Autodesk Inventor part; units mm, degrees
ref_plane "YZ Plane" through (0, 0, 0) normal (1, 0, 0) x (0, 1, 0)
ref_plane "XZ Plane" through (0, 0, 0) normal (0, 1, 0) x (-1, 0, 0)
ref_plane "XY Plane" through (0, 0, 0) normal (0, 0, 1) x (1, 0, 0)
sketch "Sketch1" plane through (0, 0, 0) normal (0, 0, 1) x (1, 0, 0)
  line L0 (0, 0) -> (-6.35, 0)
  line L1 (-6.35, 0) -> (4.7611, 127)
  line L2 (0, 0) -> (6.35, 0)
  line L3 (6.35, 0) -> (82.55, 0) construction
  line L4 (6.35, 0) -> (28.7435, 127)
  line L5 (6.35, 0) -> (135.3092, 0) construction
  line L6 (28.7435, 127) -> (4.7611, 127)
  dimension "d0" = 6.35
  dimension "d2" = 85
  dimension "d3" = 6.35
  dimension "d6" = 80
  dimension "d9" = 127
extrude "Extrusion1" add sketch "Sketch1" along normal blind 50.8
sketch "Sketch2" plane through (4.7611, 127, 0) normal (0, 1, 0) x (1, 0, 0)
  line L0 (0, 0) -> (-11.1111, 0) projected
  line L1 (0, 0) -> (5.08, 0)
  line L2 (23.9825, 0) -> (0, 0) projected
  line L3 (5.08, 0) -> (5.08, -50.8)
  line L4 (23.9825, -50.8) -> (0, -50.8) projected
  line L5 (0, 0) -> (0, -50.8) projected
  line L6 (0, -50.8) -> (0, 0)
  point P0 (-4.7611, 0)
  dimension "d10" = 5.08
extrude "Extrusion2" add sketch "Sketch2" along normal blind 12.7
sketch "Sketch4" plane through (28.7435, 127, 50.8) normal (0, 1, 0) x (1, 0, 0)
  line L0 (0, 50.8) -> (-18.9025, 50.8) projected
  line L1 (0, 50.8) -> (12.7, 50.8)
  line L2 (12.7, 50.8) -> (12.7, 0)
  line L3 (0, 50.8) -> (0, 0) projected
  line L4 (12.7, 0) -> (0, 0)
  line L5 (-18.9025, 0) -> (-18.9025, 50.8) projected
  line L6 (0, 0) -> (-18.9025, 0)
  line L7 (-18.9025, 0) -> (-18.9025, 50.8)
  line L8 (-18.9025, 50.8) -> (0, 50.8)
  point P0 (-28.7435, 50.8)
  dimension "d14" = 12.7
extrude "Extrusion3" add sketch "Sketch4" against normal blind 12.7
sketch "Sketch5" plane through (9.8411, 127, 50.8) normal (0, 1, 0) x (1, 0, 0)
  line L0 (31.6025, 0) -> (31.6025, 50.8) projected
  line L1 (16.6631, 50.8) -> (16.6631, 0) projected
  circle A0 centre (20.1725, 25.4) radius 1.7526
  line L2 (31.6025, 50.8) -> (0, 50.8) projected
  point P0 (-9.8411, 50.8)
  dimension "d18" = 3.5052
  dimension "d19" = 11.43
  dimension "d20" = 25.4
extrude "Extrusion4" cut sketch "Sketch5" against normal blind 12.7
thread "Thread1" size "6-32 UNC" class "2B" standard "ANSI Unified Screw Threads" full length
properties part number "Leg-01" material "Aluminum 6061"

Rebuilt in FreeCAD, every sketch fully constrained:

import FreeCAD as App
import Part
import Sketcher
from FreeCAD import Vector
Q = App.Units.Quantity

doc = App.newDocument("Part")
body = doc.addObject("PartDesign::Body", "Body")

sketch1 = body.newObject("Sketcher::SketchObject", "Sketch")
sketch1.AttachmentSupport = (doc.getObject("XY_Plane"), [""])
sketch1.MapMode = "FlatFace"
sketch1.addGeometry(Part.LineSegment(Vector(-6, 0, 0), Vector(6, 0, 0)), False)
sketch1.addGeometry(Part.LineSegment(Vector(6, 0, 0), Vector(29, 127, 0)), False)
sketch1.addGeometry(Part.LineSegment(Vector(29, 127, 0), Vector(5, 127, 0)), False)
sketch1.addGeometry(Part.LineSegment(Vector(5, 127, 0), Vector(-6, 0, 0)), False)
sketch1.addConstraint(Sketcher.Constraint("Coincident", 0, 2, 1, 1))
sketch1.addConstraint(Sketcher.Constraint("Coincident", 1, 2, 2, 1))
sketch1.addConstraint(Sketcher.Constraint("Coincident", 2, 2, 3, 1))
sketch1.addConstraint(Sketcher.Constraint("Coincident", 3, 2, 0, 1))
sketch1.addConstraint(Sketcher.Constraint("Horizontal", 0))
sketch1.addConstraint(Sketcher.Constraint("Horizontal", 2))
sketch1.addConstraint(Sketcher.Constraint("Symmetric", 0, 2, 3, 2, -1, 1))
sketch1.addConstraint(Sketcher.Constraint("DistanceY", -1, 1, 1, 2, Q("5 in")))
sketch1.addConstraint(Sketcher.Constraint("Angle", 1, Q("80 deg")))
sketch1.addConstraint(Sketcher.Constraint("DistanceX", -1, 1, 0, 2, Q("0.25 in")))
sketch1.addConstraint(Sketcher.Constraint("Angle", 3, Q("-95 deg")))
pad1 = body.newObject("PartDesign::Pad", "Pad")
pad1.Profile = sketch1
pad1.Length = Q("2 in")

sketch2 = body.newObject("Sketcher::SketchObject", "Sketch001")
sketch2.AttachmentSupport = (doc.getObject("XZ_Plane"), [""])
sketch2.MapMode = "FlatFace"
sketch2.AttachmentOffset = App.Placement(Vector(0, 0, -5 * 25.4), App.Rotation())
sketch2.addGeometry(Part.LineSegment(Vector(10, 0, 0), Vector(5, 0, 0)), False)
sketch2.addGeometry(Part.LineSegment(Vector(5, 0, 0), Vector(5, 51, 0)), False)
sketch2.addGeometry(Part.LineSegment(Vector(5, 51, 0), Vector(10, 51, 0)), False)
sketch2.addGeometry(Part.LineSegment(Vector(10, 51, 0), Vector(10, 0, 0)), False)
sketch2.addConstraint(Sketcher.Constraint("Coincident", 0, 2, 1, 1))
sketch2.addConstraint(Sketcher.Constraint("Coincident", 1, 2, 2, 1))
sketch2.addConstraint(Sketcher.Constraint("Coincident", 2, 2, 3, 1))
sketch2.addConstraint(Sketcher.Constraint("Coincident", 3, 2, 0, 1))
sketch2.addConstraint(Sketcher.Constraint("Horizontal", 0))
sketch2.addConstraint(Sketcher.Constraint("Vertical", 1))
sketch2.addConstraint(Sketcher.Constraint("Horizontal", 2))
sketch2.addConstraint(Sketcher.Constraint("Vertical", 3))
sketch2.addConstraint(Sketcher.Constraint("PointOnObject", 0, 2, -1))
sketch2.addConstraint(Sketcher.Constraint("DistanceX", 0, 2, 0, 1, Q("0.2 in")))
sketch2.addConstraint(Sketcher.Constraint("DistanceY", 1, 1, 1, 2, Q("2 in")))
sketch2.addConstraint(Sketcher.Constraint("DistanceX", -1, 1, 0, 2, Q("4.761 mm")))
pad2 = body.newObject("PartDesign::Pad", "Pad001")
pad2.Profile = sketch2
pad2.Length = Q("0.5 in")
pad2.Reversed = True

sketch3 = body.newObject("Sketcher::SketchObject", "Sketch002")
sketch3.AttachmentSupport = (doc.getObject("XZ_Plane"), [""])
sketch3.MapMode = "FlatFace"
sketch3.AttachmentOffset = App.Placement(Vector(0, 0, -5 * 25.4), App.Rotation())
sketch3.addGeometry(Part.LineSegment(Vector(10, 51, 0), Vector(41, 51, 0)), False)
sketch3.addGeometry(Part.LineSegment(Vector(41, 51, 0), Vector(41, 0, 0)), False)
sketch3.addGeometry(Part.LineSegment(Vector(41, 0, 0), Vector(10, 0, 0)), False)
sketch3.addGeometry(Part.LineSegment(Vector(10, 0, 0), Vector(10, 51, 0)), False)
sketch3.addConstraint(Sketcher.Constraint("Coincident", 0, 2, 1, 1))
sketch3.addConstraint(Sketcher.Constraint("Coincident", 1, 2, 2, 1))
sketch3.addConstraint(Sketcher.Constraint("Coincident", 2, 2, 3, 1))
sketch3.addConstraint(Sketcher.Constraint("Coincident", 3, 2, 0, 1))
sketch3.addConstraint(Sketcher.Constraint("Horizontal", 0))
sketch3.addConstraint(Sketcher.Constraint("Vertical", 1))
sketch3.addConstraint(Sketcher.Constraint("Horizontal", 2))
sketch3.addConstraint(Sketcher.Constraint("Vertical", 3))
sketch3.addConstraint(Sketcher.Constraint("PointOnObject", 1, 2, -1))
sketch3.addConstraint(Sketcher.Constraint("DistanceY", 1, 2, 1, 1, Q("2 in")))
sketch3.addConstraint(Sketcher.Constraint("DistanceX", 0, 1, 0, 2, Q("1.2442 in")))
sketch3.addConstraint(Sketcher.Constraint("DistanceX", -1, 1, 0, 2, Q("41.4435 mm")))
pad3 = body.newObject("PartDesign::Pad", "Pad002")
pad3.Profile = sketch3
pad3.Length = Q("0.5 in")

sketch4 = body.newObject("Sketcher::SketchObject", "Sketch003")
sketch4.AttachmentSupport = (doc.getObject("XZ_Plane"), [""])
sketch4.MapMode = "FlatFace"
sketch4.AttachmentOffset = App.Placement(Vector(0, 0, -5 * 25.4), App.Rotation())
sketch4.addGeometry(Part.Circle(Vector(30, 25.4, 0), Vector(0, 0, 1), 1.8), False)
sketch4.addConstraint(Sketcher.Constraint("Diameter", 0, Q("0.138 in")))
sketch4.addConstraint(Sketcher.Constraint("DistanceY", -1, 1, 0, 3, Q("1 in")))
sketch4.addConstraint(Sketcher.Constraint("DistanceX", -1, 1, 0, 3, Q("30.0136 mm")))
pocket1 = body.newObject("PartDesign::Pocket", "Pocket")
pocket1.Profile = sketch4
pocket1.Length = Q("0.5 in")
pocket1.Reversed = True

doc.recompute()
